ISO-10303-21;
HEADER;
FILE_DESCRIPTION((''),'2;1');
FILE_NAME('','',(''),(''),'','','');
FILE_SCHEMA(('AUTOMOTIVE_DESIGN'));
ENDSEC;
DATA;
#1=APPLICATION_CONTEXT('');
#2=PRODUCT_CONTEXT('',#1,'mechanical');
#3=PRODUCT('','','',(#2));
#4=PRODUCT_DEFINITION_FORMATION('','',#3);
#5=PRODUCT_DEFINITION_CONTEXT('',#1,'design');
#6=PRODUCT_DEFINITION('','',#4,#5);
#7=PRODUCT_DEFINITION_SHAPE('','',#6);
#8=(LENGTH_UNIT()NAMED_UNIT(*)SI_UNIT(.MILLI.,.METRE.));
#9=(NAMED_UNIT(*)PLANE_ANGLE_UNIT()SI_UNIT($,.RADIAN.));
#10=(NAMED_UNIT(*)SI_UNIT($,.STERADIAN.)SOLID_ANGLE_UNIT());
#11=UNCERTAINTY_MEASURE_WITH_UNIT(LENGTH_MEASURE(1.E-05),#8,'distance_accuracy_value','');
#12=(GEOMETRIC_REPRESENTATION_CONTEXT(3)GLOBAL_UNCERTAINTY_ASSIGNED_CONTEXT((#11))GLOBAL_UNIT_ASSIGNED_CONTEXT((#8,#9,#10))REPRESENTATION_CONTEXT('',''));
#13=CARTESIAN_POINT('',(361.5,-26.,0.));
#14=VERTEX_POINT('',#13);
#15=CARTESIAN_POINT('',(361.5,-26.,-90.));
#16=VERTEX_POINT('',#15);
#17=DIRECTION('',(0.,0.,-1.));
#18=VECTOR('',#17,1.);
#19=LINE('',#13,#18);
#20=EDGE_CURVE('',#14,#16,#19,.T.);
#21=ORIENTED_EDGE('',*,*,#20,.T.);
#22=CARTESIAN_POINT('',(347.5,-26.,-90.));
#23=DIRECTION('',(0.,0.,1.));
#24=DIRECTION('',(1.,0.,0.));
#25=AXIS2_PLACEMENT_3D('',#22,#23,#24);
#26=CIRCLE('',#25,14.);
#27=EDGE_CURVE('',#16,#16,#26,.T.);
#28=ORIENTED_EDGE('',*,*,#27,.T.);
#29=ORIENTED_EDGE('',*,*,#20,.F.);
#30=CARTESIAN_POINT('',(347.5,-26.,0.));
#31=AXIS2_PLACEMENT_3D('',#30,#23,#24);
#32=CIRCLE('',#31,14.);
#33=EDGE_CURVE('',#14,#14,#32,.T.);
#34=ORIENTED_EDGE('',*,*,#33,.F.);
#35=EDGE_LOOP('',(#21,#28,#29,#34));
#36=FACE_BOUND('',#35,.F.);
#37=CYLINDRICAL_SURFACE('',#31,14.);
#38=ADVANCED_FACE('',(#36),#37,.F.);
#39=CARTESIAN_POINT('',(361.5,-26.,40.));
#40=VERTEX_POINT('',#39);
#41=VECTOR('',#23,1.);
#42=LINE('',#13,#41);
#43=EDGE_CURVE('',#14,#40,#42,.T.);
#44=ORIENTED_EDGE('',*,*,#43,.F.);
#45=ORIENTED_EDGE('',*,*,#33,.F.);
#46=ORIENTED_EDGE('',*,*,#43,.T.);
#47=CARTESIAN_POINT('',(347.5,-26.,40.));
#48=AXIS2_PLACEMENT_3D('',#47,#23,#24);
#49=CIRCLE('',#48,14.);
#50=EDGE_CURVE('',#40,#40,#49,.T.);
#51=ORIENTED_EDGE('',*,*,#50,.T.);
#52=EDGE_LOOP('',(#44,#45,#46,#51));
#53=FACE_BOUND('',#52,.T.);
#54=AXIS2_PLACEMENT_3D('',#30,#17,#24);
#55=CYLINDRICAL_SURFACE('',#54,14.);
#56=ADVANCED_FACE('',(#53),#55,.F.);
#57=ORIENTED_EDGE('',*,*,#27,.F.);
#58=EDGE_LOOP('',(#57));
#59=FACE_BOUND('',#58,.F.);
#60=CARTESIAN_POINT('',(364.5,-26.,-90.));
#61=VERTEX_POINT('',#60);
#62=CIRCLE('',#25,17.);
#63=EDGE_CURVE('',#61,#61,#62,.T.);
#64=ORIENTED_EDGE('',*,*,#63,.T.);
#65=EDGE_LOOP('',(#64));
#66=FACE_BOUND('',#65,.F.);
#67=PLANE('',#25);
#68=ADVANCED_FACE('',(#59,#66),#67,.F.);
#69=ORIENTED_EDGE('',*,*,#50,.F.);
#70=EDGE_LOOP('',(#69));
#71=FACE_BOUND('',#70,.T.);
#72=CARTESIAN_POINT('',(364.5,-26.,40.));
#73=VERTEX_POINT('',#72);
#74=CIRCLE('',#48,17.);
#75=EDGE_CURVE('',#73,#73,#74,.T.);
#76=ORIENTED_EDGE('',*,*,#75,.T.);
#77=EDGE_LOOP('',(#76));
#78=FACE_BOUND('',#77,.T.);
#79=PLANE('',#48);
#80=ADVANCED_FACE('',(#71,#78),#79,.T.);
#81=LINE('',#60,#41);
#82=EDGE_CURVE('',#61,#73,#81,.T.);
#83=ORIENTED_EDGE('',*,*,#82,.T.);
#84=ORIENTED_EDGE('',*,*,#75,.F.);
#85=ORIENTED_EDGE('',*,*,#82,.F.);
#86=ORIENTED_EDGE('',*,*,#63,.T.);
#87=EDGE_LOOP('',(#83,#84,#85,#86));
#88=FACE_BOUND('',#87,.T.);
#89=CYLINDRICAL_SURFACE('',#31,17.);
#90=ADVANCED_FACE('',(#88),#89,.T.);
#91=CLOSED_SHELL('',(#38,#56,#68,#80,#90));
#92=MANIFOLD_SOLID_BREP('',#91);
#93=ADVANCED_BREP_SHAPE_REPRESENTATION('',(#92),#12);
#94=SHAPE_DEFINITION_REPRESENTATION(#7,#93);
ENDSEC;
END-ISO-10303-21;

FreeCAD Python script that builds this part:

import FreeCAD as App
import Part
import Sketcher
Q = App.Units.Quantity

doc = App.newDocument("Part")
params = doc.addObject("Spreadsheet::Sheet", "Params")
for row, (alias, value) in enumerate([
    ("sketch1_diameter", "34 mm"),
    ("sketch1_diameter2", "28 mm"),
    ("pad1_length", "40 mm"),
    ("pad1_length2", "90 mm"),
], start=1):
    params.set(f"A{row}", alias)
    params.set(f"B{row}", "=" + value)
    params.setAlias(f"B{row}", alias)

body = doc.addObject("PartDesign::Body", "Body")

sketch1 = body.newObject("Sketcher::SketchObject", "Sketch")
sketch1.AttachmentSupport = (doc.getObject("XY_Plane"), [""])
sketch1.MapMode = "FlatFace"
sketch1.addGeometry([
    Part.Circle(App.Vector(348, -26, 0), App.Vector(0, 0, 1), 17),
    Part.Circle(App.Vector(348, -26, 0), App.Vector(0, 0, 1), 14),
], False)
sketch1.addConstraint([
    Sketcher.Constraint("Coincident", 1, 3, 0, 3),
    Sketcher.Constraint("Diameter", 0, Q("34 mm")),
    Sketcher.Constraint("Diameter", 1, Q("28 mm")),
    Sketcher.Constraint("DistanceY", 0, 3, -1, 1, Q("26 mm")),
    Sketcher.Constraint("DistanceX", -1, 1, 0, 3, Q("347.5 mm")),
])
sketch1.setExpression("Constraints[1]", "Params.sketch1_diameter")
sketch1.setExpression("Constraints[2]", "Params.sketch1_diameter2")
pad1 = body.newObject("PartDesign::Pad", "Pad")
pad1.Profile = sketch1
pad1.Type = "TwoLengths"
pad1.setExpression("Length", "Params.pad1_length")
pad1.setExpression("Length2", "Params.pad1_length2")

doc.recompute()
